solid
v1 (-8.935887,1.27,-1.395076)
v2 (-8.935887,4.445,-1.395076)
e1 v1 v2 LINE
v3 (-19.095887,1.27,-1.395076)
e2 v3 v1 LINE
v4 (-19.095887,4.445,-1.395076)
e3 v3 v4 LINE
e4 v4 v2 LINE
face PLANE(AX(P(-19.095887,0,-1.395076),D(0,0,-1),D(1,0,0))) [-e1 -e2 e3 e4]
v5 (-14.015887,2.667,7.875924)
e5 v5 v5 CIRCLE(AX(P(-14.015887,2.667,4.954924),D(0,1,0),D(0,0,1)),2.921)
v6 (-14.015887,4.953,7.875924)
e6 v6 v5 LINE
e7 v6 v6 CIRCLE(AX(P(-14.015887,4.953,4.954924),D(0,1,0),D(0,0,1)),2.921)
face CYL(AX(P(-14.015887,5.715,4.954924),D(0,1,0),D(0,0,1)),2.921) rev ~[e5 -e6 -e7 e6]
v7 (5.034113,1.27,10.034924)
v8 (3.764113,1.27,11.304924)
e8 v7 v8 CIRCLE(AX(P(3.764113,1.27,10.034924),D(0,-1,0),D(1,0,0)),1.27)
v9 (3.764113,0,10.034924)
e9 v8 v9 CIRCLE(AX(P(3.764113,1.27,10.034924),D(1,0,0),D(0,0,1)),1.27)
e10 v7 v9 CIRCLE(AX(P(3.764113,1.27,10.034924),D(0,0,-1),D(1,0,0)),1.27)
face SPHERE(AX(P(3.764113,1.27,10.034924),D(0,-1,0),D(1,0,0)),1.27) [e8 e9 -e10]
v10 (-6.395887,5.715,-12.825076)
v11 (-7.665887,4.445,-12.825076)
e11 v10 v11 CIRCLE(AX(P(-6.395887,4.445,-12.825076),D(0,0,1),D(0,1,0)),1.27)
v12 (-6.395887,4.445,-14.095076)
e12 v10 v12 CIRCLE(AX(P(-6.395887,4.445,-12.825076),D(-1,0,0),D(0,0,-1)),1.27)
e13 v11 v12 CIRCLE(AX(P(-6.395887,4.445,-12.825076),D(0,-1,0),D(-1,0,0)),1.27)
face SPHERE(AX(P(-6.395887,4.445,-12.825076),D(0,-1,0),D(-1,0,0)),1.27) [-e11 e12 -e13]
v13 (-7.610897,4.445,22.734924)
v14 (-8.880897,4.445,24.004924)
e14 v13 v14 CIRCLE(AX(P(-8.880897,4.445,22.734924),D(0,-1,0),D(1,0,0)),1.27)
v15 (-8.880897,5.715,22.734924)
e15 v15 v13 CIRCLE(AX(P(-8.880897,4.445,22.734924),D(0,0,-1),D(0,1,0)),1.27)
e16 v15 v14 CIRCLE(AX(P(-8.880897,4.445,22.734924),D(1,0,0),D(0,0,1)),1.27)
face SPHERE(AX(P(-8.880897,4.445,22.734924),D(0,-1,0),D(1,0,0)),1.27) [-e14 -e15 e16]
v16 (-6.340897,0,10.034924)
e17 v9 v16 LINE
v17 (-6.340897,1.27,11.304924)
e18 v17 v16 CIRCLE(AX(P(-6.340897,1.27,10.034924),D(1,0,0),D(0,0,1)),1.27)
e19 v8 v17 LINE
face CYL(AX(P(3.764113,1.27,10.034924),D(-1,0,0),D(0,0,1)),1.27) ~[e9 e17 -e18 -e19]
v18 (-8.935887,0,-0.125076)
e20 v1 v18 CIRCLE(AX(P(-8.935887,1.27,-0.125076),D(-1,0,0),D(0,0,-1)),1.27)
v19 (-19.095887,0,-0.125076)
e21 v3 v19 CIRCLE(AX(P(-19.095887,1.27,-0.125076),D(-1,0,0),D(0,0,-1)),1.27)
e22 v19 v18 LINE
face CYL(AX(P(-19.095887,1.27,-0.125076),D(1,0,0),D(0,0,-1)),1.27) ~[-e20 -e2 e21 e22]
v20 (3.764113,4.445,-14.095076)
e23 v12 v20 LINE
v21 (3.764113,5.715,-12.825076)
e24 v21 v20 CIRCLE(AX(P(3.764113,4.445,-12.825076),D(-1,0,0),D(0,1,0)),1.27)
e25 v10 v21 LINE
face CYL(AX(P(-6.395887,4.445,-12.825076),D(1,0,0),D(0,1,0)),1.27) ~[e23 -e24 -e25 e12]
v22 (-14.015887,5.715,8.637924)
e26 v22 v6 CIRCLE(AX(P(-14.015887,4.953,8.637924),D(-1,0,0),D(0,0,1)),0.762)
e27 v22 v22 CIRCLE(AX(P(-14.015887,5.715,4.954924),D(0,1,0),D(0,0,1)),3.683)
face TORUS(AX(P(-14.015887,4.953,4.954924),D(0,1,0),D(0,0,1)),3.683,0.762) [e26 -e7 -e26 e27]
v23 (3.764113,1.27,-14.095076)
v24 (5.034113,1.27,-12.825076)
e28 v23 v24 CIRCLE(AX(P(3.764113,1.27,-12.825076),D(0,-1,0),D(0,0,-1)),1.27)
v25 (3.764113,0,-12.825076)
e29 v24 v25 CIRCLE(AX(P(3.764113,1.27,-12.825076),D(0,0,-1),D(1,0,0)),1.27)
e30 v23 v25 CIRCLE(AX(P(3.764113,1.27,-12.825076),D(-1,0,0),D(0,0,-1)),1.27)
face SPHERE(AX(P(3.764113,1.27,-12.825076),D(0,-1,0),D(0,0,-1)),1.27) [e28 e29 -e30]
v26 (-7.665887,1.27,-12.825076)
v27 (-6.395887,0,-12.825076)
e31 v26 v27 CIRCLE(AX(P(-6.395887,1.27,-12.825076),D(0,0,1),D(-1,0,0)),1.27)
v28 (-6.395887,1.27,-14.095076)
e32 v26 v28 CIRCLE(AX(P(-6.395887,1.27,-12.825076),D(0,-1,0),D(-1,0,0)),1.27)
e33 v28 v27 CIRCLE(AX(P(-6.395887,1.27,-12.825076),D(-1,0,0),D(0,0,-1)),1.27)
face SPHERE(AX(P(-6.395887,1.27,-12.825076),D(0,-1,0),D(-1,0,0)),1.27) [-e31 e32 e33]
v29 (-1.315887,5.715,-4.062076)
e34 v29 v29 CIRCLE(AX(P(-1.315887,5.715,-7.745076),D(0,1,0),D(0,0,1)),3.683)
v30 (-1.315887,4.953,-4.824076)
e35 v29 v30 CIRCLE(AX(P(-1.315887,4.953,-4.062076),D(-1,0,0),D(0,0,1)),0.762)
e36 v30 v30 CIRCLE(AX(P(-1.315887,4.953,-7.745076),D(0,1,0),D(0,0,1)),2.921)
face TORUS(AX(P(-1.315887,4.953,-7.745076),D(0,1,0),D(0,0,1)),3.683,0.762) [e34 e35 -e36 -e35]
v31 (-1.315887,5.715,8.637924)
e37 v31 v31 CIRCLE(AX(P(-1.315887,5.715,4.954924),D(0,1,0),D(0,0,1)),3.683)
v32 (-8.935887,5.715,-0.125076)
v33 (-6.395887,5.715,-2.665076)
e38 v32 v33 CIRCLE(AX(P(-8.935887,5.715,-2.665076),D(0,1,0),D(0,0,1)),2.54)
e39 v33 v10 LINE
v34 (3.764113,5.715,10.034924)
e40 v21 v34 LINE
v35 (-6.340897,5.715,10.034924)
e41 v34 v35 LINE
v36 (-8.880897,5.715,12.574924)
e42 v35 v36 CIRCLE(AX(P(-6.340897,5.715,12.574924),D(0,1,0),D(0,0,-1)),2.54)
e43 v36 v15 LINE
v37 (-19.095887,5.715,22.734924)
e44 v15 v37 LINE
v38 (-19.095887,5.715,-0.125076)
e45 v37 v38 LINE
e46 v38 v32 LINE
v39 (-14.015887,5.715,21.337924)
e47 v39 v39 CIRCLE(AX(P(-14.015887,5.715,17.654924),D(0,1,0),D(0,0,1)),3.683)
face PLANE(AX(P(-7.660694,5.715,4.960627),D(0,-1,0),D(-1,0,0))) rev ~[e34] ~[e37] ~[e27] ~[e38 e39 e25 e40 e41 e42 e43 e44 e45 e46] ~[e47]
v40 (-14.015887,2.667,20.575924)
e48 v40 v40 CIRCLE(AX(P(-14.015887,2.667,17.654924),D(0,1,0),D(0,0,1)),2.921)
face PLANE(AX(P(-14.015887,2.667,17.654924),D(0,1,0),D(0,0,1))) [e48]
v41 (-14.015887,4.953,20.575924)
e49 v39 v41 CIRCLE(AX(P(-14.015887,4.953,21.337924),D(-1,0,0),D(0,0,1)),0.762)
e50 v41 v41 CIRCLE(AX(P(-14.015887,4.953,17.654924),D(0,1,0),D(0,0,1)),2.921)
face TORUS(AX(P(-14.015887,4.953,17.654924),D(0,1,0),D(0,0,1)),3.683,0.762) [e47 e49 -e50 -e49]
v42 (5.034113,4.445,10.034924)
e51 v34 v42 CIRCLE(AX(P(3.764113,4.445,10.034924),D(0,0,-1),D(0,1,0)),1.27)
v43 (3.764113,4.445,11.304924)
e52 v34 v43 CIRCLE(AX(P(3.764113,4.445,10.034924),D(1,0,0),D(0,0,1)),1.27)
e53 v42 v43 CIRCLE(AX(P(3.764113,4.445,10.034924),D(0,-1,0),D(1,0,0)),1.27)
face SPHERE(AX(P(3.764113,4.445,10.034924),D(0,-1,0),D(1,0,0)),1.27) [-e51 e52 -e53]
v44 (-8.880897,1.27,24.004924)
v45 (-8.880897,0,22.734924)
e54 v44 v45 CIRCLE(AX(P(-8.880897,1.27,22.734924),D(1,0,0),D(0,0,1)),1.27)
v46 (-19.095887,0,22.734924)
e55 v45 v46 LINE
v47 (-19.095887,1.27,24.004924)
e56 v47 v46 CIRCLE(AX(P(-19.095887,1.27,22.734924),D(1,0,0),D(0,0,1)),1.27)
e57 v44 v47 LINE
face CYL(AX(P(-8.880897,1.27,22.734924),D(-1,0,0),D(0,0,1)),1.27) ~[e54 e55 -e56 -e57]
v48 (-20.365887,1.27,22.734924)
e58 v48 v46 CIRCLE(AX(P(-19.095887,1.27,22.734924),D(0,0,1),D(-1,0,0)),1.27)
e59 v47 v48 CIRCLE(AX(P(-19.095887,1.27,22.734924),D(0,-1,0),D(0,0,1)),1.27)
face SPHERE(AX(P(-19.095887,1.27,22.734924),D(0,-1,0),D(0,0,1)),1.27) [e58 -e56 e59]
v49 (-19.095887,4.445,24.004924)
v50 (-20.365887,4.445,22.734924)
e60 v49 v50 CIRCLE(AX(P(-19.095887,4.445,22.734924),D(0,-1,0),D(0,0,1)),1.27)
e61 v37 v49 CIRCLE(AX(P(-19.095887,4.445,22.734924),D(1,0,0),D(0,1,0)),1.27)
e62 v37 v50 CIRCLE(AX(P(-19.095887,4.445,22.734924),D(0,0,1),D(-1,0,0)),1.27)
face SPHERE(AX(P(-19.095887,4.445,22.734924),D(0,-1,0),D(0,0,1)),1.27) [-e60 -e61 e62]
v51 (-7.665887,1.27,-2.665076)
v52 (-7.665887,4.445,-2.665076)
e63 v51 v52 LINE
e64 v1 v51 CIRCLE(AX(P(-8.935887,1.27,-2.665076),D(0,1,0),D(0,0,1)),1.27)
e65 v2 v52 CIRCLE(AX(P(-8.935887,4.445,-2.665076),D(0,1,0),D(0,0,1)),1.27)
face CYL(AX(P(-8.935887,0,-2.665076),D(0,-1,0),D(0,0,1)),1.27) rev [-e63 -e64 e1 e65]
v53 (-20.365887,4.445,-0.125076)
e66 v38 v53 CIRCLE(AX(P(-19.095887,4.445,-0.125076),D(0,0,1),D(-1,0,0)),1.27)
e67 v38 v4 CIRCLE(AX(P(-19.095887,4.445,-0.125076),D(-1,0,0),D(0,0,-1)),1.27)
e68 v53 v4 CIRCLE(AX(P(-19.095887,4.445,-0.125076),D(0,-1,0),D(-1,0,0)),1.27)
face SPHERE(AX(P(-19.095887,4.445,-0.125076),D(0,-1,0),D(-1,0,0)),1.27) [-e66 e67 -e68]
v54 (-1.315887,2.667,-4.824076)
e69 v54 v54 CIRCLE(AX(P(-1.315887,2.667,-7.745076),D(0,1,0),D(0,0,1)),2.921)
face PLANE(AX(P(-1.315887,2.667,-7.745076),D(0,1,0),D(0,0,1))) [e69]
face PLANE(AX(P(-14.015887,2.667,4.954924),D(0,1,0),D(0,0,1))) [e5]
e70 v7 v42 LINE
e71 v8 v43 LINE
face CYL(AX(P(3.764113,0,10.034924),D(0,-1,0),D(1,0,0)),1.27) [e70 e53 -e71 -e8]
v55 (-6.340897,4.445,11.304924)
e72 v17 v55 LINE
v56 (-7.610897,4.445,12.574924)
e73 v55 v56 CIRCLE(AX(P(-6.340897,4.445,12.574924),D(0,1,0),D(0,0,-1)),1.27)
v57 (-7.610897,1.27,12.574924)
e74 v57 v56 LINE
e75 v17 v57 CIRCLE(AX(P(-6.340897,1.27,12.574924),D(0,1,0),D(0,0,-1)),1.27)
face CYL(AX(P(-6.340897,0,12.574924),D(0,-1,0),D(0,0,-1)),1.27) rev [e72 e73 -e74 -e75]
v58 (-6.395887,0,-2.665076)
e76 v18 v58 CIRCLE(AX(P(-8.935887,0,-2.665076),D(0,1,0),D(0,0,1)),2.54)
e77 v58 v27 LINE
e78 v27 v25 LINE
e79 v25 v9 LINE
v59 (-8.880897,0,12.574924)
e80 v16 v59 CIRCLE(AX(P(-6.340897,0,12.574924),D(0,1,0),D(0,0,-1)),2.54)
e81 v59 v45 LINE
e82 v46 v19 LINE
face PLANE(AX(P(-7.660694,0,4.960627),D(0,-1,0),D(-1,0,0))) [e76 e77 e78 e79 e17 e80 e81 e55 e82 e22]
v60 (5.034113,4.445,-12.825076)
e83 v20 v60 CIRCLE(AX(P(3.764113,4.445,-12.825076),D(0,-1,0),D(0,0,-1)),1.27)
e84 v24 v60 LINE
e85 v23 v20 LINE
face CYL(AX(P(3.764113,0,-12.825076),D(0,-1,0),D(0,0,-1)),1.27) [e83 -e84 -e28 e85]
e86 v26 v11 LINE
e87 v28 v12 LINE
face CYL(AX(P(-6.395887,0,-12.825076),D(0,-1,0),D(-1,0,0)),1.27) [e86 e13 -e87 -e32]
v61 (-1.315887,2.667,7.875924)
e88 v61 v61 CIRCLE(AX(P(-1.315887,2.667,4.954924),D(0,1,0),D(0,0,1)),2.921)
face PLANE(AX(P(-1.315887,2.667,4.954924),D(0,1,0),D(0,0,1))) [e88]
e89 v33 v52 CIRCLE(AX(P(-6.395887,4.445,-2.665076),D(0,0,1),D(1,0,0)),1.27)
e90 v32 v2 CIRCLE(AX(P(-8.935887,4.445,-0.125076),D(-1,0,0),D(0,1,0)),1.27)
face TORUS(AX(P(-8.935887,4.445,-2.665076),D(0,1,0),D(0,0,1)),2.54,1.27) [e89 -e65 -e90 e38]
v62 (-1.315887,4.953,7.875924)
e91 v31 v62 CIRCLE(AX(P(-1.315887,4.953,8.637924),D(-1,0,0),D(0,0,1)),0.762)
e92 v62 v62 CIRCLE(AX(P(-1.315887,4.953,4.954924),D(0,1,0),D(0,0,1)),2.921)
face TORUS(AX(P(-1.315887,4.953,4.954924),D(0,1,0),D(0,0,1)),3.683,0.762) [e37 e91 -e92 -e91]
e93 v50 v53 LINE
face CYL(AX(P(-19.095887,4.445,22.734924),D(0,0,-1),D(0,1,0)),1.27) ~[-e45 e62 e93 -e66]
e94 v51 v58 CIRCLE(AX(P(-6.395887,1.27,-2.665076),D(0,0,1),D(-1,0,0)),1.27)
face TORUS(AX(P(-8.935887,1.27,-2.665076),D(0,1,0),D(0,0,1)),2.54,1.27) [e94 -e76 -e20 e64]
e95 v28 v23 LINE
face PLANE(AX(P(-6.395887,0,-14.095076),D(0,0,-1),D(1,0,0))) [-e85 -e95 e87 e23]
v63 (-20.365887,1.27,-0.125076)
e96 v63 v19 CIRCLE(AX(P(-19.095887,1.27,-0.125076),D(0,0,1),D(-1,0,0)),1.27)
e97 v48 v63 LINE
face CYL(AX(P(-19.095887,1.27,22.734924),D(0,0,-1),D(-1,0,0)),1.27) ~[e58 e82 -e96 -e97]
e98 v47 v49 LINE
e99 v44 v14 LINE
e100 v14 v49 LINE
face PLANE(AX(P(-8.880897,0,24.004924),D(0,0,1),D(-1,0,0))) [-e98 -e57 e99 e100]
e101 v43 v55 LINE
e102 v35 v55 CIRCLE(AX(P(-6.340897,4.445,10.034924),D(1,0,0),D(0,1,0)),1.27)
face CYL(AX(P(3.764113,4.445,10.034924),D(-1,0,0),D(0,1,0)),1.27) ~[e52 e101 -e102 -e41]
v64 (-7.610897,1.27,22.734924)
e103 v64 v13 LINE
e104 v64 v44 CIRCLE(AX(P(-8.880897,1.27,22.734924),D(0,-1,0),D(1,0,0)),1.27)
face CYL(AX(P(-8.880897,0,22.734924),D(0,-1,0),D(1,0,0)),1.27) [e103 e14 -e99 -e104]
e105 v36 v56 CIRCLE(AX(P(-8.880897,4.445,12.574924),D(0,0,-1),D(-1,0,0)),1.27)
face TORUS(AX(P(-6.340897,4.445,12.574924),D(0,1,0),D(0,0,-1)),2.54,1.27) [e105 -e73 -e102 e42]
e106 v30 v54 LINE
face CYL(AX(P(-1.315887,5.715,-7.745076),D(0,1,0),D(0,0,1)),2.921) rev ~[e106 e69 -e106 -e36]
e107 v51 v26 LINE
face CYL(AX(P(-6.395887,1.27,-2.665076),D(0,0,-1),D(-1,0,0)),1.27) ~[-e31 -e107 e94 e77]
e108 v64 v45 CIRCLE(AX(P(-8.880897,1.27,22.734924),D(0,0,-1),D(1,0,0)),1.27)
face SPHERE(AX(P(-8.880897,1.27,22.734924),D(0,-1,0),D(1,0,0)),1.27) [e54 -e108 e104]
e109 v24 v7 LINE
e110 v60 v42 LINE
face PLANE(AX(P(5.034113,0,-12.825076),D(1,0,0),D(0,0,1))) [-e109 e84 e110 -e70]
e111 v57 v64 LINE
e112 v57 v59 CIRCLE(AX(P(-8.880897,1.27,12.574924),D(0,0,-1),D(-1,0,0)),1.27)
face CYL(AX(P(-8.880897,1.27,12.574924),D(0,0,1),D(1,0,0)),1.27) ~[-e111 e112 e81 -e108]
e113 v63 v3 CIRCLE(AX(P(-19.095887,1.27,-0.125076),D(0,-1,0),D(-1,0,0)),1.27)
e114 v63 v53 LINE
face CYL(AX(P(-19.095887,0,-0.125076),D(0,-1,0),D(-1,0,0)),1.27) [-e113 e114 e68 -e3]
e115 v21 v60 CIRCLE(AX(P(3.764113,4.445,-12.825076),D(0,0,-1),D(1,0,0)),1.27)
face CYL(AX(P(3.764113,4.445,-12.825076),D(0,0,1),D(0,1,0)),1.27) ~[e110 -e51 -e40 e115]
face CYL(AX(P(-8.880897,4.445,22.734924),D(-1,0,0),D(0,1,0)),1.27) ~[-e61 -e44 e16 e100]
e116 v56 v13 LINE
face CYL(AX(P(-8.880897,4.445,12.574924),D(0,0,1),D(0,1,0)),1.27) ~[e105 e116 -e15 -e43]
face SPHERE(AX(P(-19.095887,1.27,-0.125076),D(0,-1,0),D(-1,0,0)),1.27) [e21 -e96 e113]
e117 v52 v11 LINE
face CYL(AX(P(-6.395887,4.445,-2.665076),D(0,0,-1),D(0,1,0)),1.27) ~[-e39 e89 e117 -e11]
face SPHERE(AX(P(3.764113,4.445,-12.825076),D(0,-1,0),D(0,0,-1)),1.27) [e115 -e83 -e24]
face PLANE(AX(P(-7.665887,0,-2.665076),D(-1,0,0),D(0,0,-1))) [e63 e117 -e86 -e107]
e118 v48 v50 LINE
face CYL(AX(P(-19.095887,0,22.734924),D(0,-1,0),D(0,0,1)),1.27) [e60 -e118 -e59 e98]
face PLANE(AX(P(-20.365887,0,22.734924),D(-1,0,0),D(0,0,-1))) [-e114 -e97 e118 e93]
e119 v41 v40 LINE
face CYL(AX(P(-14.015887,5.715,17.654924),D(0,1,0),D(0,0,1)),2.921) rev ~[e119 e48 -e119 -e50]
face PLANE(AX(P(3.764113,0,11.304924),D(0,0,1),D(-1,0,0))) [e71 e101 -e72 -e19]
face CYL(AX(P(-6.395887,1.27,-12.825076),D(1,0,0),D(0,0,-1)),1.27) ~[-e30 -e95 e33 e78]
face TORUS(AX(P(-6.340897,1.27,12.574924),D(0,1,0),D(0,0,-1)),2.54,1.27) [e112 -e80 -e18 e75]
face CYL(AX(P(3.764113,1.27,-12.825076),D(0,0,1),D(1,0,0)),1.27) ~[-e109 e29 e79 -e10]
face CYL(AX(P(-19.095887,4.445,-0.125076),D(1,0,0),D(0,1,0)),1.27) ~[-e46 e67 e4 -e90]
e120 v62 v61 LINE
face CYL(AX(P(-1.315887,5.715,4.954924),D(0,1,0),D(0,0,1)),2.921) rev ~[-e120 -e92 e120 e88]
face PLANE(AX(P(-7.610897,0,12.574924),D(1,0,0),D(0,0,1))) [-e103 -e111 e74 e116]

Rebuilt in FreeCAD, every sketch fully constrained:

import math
import FreeCAD as App
import Part
import Sketcher
from FreeCAD import Vector
Q = App.Units.Quantity


def edges_at(feature, points):
    """Names of the edges that pass closest to the given points."""
    edges = feature.Shape.Edges
    near = lambda p: min(range(len(edges)), key=lambda i: edges[i].distToShape(Part.Vertex(*p))[0])
    return sorted({f"Edge{near(p) + 1}" for p in points})

doc = App.newDocument("Part")
params = doc.addObject("Spreadsheet::Sheet", "Params")
for row, (alias, value) in enumerate([
    ("sketch1_radius", "0.05 in"),
    ("sketch1_width", "0.4 in"),
    ("sketch1_height", "0.9 in"),
    ("pad1_length", "0.225 in"),
    ("sketch2_diameter", "0.23 in"),
    ("pocket1_length", "0.12 in"),
    ("fillet_radius", "0.05 in"),
    ("fillet2_radius", "0.05 in"),
    ("fillet3_radius", "0.03 in"),
], start=1):
    params.set(f"A{row}", alias)
    params.set(f"B{row}", "=" + value)
    params.setAlias(f"B{row}", alias)

body = doc.addObject("PartDesign::Body", "Body")

sketch1 = body.newObject("Sketcher::SketchObject", "Sketch")
sketch1.AttachmentSupport = (doc.getObject("XZ_Plane"), [""])
sketch1.MapMode = "FlatFace"
sketch1.addGeometry([
    Part.LineSegment(Vector(-7.7, -12.8, 0), Vector(-7.7, -2.7, 0)),
    Part.ArcOfCircle(Part.Circle(Vector(-8.9, -2.7, 0), Vector(0, 0, 1), 1.3), math.radians(0), math.radians(90)),
    Part.LineSegment(Vector(-8.9, -1.4, 0), Vector(-19.1, -1.4, 0)),
    Part.ArcOfCircle(Part.Circle(Vector(-19.1, -0.1, 0), Vector(0, 0, 1), 1.3), math.radians(180), math.radians(270)),
    Part.LineSegment(Vector(-20.4, -0.1, 0), Vector(-20.4, 22.7, 0)),
    Part.ArcOfCircle(Part.Circle(Vector(-19.1, 22.7, 0), Vector(0, 0, 1), 1.3), math.radians(90), math.radians(180)),
    Part.LineSegment(Vector(-19.1, 24, 0), Vector(-8.9, 24, 0)),
    Part.ArcOfCircle(Part.Circle(Vector(-8.9, 22.7, 0), Vector(0, 0, 1), 1.3), math.radians(0), math.radians(90)),
    Part.LineSegment(Vector(-7.6, 22.7, 0), Vector(-7.6, 12.6, 0)),
    Part.ArcOfCircle(Part.Circle(Vector(-6.3, 12.6, 0), Vector(0, 0, 1), 1.3), math.radians(180), math.radians(270)),
    Part.LineSegment(Vector(-6.3, 11.3, 0), Vector(3.8, 11.3, 0)),
    Part.ArcOfCircle(Part.Circle(Vector(3.8, 10, 0), Vector(0, 0, 1), 1.3), math.radians(0), math.radians(90)),
    Part.LineSegment(Vector(5, 10, 0), Vector(5, -12.8, 0)),
    Part.ArcOfCircle(Part.Circle(Vector(3.8, -12.8, 0), Vector(0, 0, 1), 1.3), math.radians(-90), math.radians(0)),
    Part.LineSegment(Vector(3.8, -14.1, 0), Vector(-6.4, -14.1, 0)),
    Part.ArcOfCircle(Part.Circle(Vector(-6.4, -12.8, 0), Vector(0, 0, 1), 1.3), math.radians(180), math.radians(270)),
], False)
sketch1.addConstraint([
    Sketcher.Constraint("Tangent", 0, 2, 1, 1),
    Sketcher.Constraint("Tangent", 1, 2, 2, 1),
    Sketcher.Constraint("Tangent", 2, 2, 3, 2),
    Sketcher.Constraint("Tangent", 3, 1, 4, 1),
    Sketcher.Constraint("Tangent", 4, 2, 5, 2),
    Sketcher.Constraint("Tangent", 5, 1, 6, 1),
    Sketcher.Constraint("Tangent", 6, 2, 7, 2),
    Sketcher.Constraint("Tangent", 7, 1, 8, 1),
    Sketcher.Constraint("Tangent", 8, 2, 9, 1),
    Sketcher.Constraint("Tangent", 9, 2, 10, 1),
    Sketcher.Constraint("Tangent", 10, 2, 11, 2),
    Sketcher.Constraint("Tangent", 11, 1, 12, 1),
    Sketcher.Constraint("Tangent", 12, 2, 13, 2),
    Sketcher.Constraint("Tangent", 13, 1, 14, 1),
    Sketcher.Constraint("Tangent", 14, 2, 15, 2),
    Sketcher.Constraint("Tangent", 15, 1, 0, 1),
    Sketcher.Constraint("Vertical", 0),
    Sketcher.Constraint("Horizontal", 2),
    Sketcher.Constraint("Vertical", 4),
    Sketcher.Constraint("Horizontal", 6),
    Sketcher.Constraint("Vertical", 8),
    Sketcher.Constraint("Horizontal", 10),
    Sketcher.Constraint("Vertical", 12),
    Sketcher.Constraint("Horizontal", 14),
    Sketcher.Constraint("Equal", 1, 3),
    Sketcher.Constraint("Equal", 3, 5),
    Sketcher.Constraint("Equal", 5, 7),
    Sketcher.Constraint("Equal", 7, 9),
    Sketcher.Constraint("Equal", 9, 11),
    Sketcher.Constraint("Equal", 11, 13),
    Sketcher.Constraint("Equal", 13, 15),
    Sketcher.Constraint("Equal", 2, 14),
    Sketcher.Constraint("Equal", 14, 0),
    Sketcher.Constraint("Equal", 0, 8),
    Sketcher.Constraint("Radius", 1, Q("0.05 in")),
    Sketcher.Constraint("DistanceX", 2, 2, 2, 1, Q("0.4 in")),
    Sketcher.Constraint("DistanceY", 4, 1, 4, 2, Q("0.9 in")),
    Sketcher.Constraint("DistanceX", 6, 1, 6, 2, Q("10.21499 mm")),
    Sketcher.Constraint("DistanceX", 1, 3, -1, 1, Q("8.935887 mm")),
    Sketcher.Constraint("DistanceY", 1, 3, -1, 1, Q("2.665076 mm")),
])
sketch1.setExpression("Constraints[34]", "Params.sketch1_radius")
sketch1.setExpression("Constraints[35]", "Params.sketch1_width")
sketch1.setExpression("Constraints[36]", "Params.sketch1_height")
pad1 = body.newObject("PartDesign::Pad", "Pad")
pad1.Profile = sketch1
pad1.setExpression("Length", "Params.pad1_length")
pad1.Reversed = True

sketch2 = body.newObject("Sketcher::SketchObject", "Sketch001")
sketch2.AttachmentSupport = (doc.getObject("XZ_Plane"), [""])
sketch2.MapMode = "FlatFace"
sketch2.AttachmentOffset = App.Placement(Vector(0, 0, -0.225 * 25.4), App.Rotation())
sketch2.addGeometry([
    Part.Circle(Vector(-1.3, -7.7, 0), Vector(0, 0, 1), 2.9),
    Part.Circle(Vector(-14, 5, 0), Vector(0, 0, 1), 2.9),
    Part.Circle(Vector(-14, 17.7, 0), Vector(0, 0, 1), 2.9),
    Part.Circle(Vector(-1.3, 5, 0), Vector(0, 0, 1), 2.9),
], False)
sketch2.addConstraint([
    Sketcher.Constraint("Equal", 0, 1),
    Sketcher.Constraint("Equal", 1, 2),
    Sketcher.Constraint("Equal", 2, 3),
    Sketcher.Constraint("Horizontal", 1, 3, 3, 3),
    Sketcher.Constraint("Vertical", 1, 3, 2, 3),
    Sketcher.Constraint("Vertical", 0, 3, 3, 3),
    Sketcher.Constraint("Diameter", 0, Q("0.23 in")),
    Sketcher.Constraint("DistanceY", 0, 3, 2, 3, Q("1 in")),
    Sketcher.Constraint("DistanceX", 1, 3, 0, 3, Q("0.5 in")),
    Sketcher.Constraint("DistanceY", 0, 3, 1, 3, Q("0.5 in")),
    Sketcher.Constraint("DistanceX", 0, 3, -1, 1, Q("1.315887 mm")),
    Sketcher.Constraint("DistanceY", 0, 3, -1, 1, Q("7.745076 mm")),
])
sketch2.setExpression("Constraints[6]", "Params.sketch2_diameter")
pocket1 = body.newObject("PartDesign::Pocket", "Pocket")
pocket1.Profile = sketch2
pocket1.setExpression("Length", "Params.pocket1_length")
pocket1.Reversed = True
doc.recompute()

fillet = body.newObject("PartDesign::Fillet", "Fillet")
fillet.Base = (pocket1, edges_at(pocket1, [
    (-19.994, 5.715, -1.023),
    (-20.366, 5.715, 11.305),
    (-19.994, 5.715, 23.633),
    (-13.988, 5.715, 24.005),
    (-7.983, 5.715, 23.633),
    (-7.611, 5.715, 17.655),
    (-7.239, 5.715, 11.677),
    (-1.288, 5.715, 11.305),
    (4.662, 5.715, 10.933),
    (5.034, 5.715, -1.395),
    (-8.038, 5.715, -1.767),
    (4.662, 5.715, -13.723),
    (-1.316, 5.715, -14.095),
    (-7.294, 5.715, -13.723),
    (-7.666, 5.715, -7.745),
    (-14.016, 5.715, -1.395),
]))
fillet.setExpression("Radius", "Params.fillet_radius")
doc.recompute()

fillet2 = body.newObject("PartDesign::Fillet", "Fillet001")
fillet2.Base = (fillet, edges_at(fillet, [
    (-7.666, 0, -7.745),
    (-7.294, 0, -13.723),
    (-1.316, 0, -14.095),
    (4.662, 0, -13.723),
    (5.034, 0, -1.395),
    (4.662, 0, 10.933),
    (-1.288, 0, 11.305),
    (-7.239, 0, 11.677),
    (-7.611, 0, 17.655),
    (-7.983, 0, 23.633),
    (-13.988, 0, 24.005),
    (-19.994, 0, 23.633),
    (-20.366, 0, 11.305),
    (-19.994, 0, -1.023),
    (-14.016, 0, -1.395),
    (-8.038, 0, -1.767),
]))
fillet2.setExpression("Radius", "Params.fillet2_radius")
doc.recompute()

fillet3 = body.newObject("PartDesign::Fillet", "Fillet002")
fillet3.Base = (fillet2, edges_at(fillet2, [
    (-1.316, 5.715, -10.666),
    (-14.016, 5.715, 2.034),
    (-14.016, 5.715, 14.734),
    (-1.316, 5.715, 2.034),
]))
fillet3.setExpression("Radius", "Params.fillet3_radius")

doc.recompute()
